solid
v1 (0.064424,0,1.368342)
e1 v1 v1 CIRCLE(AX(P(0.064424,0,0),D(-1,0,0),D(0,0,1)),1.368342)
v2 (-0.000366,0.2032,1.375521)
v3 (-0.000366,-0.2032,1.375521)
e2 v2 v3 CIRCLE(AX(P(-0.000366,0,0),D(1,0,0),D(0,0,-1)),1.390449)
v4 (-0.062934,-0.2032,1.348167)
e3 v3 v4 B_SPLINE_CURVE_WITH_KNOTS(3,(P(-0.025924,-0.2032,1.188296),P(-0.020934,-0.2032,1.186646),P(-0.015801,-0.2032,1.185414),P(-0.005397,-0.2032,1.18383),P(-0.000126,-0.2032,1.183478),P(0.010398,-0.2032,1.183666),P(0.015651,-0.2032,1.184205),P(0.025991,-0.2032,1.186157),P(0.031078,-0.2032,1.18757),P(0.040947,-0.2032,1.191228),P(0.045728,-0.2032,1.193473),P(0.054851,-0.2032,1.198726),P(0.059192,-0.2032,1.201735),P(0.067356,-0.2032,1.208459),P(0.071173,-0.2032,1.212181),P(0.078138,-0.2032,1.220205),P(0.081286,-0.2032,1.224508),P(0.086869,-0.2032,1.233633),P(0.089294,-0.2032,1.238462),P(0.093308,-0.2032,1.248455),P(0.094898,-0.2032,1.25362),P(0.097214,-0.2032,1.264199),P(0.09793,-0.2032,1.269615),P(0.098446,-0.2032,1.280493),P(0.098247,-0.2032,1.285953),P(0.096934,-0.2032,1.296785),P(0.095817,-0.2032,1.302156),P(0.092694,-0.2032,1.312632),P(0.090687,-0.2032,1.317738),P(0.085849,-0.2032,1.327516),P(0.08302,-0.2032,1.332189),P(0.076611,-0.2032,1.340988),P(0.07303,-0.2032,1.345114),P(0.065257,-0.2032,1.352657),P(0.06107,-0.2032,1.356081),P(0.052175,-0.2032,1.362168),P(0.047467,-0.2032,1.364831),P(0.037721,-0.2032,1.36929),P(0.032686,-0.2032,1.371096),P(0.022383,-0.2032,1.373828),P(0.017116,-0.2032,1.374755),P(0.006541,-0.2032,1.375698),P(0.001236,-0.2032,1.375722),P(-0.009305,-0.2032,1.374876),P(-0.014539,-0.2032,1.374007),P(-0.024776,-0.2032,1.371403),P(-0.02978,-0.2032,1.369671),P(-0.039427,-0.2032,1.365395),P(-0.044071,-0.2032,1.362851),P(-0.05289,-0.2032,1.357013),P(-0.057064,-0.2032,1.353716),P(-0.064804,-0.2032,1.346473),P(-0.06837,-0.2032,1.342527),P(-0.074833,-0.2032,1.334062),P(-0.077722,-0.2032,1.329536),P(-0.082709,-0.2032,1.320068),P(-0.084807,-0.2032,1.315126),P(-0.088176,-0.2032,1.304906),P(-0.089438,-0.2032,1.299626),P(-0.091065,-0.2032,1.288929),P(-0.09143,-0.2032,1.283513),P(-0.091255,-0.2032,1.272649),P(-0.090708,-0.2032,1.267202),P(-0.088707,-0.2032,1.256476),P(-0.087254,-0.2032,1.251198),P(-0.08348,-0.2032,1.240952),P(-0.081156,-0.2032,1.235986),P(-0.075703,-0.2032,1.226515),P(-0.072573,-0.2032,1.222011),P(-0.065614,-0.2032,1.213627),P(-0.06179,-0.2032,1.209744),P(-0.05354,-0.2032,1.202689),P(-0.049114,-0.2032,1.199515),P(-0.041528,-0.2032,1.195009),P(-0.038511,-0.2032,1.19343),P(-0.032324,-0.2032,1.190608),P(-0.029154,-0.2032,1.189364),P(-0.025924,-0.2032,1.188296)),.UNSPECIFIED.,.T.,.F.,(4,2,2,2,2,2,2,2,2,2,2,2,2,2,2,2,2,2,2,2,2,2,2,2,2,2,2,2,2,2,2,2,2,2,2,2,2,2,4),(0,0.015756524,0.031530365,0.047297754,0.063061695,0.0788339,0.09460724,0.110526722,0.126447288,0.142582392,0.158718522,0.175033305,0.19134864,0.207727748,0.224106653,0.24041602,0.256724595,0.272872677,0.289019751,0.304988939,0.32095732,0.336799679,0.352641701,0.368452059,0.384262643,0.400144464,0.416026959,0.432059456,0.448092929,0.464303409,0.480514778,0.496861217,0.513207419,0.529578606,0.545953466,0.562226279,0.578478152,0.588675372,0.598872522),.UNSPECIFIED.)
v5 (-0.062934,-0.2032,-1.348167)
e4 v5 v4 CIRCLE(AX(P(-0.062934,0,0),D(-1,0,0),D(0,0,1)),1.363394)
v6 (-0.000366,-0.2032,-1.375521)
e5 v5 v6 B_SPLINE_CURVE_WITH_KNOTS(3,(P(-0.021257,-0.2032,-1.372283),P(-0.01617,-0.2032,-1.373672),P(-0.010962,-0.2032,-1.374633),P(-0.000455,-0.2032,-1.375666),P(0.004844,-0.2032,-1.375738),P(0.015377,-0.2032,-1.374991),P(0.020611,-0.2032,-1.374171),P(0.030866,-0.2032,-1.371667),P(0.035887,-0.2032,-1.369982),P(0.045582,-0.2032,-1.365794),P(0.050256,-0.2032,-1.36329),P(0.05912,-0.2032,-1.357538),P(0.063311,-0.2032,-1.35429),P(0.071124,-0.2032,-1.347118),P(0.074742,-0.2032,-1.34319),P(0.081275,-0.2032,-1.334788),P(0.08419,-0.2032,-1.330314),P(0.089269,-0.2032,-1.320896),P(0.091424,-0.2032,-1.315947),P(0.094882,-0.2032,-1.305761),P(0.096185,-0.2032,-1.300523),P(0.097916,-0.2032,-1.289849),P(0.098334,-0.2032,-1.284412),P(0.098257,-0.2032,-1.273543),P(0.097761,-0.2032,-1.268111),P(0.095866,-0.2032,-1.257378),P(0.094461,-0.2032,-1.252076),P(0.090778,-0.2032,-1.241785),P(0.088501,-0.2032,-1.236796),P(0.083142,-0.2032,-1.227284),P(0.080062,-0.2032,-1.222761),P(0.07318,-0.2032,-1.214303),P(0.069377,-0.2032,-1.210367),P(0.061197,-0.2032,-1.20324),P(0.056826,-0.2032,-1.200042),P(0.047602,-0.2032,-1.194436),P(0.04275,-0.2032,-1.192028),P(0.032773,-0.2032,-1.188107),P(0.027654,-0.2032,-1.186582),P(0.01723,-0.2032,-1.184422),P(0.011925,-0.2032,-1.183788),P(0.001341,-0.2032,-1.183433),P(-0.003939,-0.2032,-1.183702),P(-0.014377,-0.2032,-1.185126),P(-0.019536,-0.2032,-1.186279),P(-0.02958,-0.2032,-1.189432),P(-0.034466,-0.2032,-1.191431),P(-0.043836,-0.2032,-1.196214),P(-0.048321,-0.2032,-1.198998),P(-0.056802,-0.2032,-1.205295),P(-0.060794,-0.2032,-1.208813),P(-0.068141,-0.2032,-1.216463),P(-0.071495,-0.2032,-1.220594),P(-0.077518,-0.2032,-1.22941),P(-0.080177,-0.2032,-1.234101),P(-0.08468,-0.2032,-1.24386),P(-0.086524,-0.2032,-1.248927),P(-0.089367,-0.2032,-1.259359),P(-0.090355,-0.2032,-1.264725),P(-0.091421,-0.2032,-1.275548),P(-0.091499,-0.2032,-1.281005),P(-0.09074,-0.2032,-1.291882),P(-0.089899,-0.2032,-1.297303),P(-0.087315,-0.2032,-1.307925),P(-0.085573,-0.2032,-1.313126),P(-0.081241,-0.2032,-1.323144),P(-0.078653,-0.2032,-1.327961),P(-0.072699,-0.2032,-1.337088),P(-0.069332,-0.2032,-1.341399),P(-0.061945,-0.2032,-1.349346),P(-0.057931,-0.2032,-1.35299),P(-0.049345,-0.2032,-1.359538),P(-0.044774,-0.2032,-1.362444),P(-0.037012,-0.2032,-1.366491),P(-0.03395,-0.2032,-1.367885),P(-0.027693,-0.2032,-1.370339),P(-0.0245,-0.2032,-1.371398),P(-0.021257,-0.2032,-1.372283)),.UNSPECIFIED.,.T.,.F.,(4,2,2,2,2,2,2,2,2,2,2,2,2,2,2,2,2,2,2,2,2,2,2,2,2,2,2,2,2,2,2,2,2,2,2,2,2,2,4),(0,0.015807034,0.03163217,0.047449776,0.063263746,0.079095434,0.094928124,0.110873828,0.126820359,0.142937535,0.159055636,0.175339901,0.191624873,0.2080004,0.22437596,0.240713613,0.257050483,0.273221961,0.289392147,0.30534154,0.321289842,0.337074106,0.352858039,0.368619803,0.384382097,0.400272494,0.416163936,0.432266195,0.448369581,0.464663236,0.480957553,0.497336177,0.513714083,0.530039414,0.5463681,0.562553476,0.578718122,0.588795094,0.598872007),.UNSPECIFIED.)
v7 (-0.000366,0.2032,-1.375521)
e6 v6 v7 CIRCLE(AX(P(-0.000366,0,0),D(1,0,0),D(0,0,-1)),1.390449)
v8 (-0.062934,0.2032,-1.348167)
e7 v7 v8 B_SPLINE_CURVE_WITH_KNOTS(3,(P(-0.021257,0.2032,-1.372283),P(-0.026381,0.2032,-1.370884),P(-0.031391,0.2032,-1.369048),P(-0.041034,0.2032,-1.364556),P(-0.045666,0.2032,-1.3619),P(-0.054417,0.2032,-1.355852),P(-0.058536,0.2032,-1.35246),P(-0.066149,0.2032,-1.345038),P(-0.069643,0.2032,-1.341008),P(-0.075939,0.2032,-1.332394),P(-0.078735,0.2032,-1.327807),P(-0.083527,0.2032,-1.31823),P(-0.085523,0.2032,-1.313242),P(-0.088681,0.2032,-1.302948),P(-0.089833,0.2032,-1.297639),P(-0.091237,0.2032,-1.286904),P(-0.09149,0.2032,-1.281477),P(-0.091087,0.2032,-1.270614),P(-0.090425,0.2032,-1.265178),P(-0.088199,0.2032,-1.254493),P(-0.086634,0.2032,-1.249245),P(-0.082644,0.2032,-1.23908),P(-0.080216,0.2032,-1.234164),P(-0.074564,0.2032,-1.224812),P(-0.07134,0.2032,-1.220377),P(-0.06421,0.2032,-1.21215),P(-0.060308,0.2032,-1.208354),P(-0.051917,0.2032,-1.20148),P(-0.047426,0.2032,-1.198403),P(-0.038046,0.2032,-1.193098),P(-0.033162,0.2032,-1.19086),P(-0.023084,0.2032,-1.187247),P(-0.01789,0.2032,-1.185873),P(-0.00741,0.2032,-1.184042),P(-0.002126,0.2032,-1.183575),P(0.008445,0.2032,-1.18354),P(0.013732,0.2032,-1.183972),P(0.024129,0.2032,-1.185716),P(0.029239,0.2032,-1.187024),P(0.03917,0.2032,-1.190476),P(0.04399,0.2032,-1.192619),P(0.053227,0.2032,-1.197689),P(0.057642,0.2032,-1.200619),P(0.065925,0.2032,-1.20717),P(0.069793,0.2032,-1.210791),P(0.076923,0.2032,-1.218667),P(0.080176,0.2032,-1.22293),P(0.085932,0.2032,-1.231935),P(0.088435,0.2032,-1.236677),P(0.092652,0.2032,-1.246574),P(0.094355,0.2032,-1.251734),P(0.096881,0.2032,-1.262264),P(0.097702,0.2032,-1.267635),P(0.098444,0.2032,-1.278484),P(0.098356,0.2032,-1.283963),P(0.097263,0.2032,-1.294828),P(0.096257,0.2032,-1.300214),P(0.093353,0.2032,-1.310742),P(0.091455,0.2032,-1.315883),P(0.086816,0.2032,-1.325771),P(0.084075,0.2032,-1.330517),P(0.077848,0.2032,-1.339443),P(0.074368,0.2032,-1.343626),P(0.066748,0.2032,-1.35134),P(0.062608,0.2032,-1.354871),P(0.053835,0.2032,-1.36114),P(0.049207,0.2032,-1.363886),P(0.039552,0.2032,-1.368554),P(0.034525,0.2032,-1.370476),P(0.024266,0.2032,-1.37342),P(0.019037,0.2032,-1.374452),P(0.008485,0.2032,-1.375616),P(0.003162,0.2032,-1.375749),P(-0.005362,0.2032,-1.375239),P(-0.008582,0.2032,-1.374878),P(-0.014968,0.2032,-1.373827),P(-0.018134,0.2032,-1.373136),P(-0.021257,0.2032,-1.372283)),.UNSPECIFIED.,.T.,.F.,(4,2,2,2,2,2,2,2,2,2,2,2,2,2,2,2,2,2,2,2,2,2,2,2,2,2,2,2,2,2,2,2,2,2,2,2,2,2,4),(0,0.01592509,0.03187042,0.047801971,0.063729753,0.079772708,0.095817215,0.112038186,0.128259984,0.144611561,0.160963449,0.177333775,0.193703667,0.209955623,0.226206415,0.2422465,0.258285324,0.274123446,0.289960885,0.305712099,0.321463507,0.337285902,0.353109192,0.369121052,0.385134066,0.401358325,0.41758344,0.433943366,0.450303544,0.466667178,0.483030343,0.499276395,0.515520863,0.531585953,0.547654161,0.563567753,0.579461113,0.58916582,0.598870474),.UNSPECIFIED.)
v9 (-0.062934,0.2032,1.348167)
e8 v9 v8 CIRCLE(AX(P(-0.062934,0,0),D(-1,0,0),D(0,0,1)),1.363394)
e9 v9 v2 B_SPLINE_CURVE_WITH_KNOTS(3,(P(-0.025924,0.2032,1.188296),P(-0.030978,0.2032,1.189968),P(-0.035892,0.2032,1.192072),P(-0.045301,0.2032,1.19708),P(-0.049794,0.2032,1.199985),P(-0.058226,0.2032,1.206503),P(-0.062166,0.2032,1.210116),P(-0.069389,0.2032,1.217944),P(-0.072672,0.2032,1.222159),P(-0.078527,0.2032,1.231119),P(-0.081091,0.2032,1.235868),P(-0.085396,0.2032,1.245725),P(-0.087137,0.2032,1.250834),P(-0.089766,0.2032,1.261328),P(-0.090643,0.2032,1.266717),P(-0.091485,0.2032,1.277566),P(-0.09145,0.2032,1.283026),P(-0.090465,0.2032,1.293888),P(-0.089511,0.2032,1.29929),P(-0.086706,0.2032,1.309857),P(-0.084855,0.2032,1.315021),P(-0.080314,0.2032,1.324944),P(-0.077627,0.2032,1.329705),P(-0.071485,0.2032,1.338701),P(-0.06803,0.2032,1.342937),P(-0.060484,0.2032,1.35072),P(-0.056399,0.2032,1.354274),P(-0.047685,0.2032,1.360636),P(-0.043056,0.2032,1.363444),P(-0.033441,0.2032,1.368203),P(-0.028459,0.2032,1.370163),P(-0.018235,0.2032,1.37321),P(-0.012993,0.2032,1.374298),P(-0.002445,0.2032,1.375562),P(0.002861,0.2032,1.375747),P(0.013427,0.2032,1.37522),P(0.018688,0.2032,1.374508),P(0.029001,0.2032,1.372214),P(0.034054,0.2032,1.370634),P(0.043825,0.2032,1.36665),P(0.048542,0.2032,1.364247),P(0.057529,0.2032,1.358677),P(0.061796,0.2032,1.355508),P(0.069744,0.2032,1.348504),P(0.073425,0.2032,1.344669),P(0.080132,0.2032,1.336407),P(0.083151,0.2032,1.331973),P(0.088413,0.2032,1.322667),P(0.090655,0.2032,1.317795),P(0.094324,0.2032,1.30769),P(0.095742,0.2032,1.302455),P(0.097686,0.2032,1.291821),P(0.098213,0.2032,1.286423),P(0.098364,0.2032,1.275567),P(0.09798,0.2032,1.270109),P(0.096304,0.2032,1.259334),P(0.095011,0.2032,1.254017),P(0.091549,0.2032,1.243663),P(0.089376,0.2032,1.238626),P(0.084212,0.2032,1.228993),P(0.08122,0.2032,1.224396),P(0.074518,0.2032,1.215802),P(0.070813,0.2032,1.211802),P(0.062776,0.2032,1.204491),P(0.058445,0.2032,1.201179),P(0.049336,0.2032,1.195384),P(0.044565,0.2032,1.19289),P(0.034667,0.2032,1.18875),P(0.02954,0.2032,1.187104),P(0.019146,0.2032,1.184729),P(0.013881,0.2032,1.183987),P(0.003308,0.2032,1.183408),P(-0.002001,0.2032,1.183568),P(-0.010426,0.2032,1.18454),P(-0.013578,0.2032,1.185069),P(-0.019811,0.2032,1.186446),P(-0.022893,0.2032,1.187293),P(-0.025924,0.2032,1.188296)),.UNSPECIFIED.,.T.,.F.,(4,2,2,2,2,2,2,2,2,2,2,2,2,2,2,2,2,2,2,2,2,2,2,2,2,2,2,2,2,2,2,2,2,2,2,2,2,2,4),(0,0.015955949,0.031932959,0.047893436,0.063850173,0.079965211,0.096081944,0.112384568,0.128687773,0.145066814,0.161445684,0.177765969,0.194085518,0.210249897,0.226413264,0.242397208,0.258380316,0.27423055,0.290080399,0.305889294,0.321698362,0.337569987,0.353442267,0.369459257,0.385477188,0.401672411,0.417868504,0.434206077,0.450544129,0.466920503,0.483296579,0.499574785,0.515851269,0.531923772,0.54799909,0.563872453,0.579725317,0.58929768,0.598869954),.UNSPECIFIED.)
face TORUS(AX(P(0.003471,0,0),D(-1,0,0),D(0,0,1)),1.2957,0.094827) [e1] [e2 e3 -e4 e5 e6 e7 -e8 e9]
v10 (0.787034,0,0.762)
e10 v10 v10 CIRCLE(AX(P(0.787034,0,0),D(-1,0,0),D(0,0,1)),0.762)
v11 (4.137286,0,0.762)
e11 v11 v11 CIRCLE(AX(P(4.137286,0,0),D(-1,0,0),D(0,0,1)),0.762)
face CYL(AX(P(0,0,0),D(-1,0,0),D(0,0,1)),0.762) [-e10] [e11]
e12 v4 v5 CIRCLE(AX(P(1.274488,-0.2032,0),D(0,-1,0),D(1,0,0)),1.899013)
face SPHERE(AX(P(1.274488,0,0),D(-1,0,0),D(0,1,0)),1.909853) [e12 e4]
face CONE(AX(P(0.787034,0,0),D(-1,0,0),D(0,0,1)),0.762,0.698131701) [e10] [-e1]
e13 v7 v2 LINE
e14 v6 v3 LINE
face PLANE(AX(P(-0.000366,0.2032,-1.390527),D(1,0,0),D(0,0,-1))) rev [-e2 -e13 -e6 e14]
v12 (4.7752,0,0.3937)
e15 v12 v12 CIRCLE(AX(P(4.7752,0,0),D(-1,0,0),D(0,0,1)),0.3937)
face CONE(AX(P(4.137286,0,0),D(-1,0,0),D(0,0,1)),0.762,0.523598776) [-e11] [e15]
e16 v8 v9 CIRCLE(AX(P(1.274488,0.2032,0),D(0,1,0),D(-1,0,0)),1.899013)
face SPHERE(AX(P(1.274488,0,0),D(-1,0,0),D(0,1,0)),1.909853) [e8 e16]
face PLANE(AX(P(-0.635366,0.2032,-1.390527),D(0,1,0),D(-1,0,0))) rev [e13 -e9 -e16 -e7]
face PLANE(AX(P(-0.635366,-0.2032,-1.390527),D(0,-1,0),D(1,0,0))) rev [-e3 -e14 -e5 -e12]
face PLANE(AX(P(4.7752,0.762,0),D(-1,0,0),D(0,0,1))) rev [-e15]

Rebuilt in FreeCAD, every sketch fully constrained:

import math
import FreeCAD as App
import Part
import Sketcher
from FreeCAD import Vector
Q = App.Units.Quantity


def add_polygon(sketch, points):
    """Adds a closed chain of lines whose ends are joined by coincident constraints."""
    first, n = sketch.GeometryCount, len(points)
    for a, b in zip(points, points[1:] + points[:1]):
        sketch.addGeometry(Part.LineSegment(App.Vector(*a, 0), App.Vector(*b, 0)), False)
    for i in range(n):
        sketch.addConstraint(Sketcher.Constraint("Coincident", first + i, 2, first + (i + 1) % n, 1))

doc = App.newDocument("Part")
body = doc.addObject("PartDesign::Body", "Body")

# Sketch on XY plane
sketch1 = body.newObject("Sketcher::SketchObject", "Sketch")
sketch1.AttachmentSupport = (doc.getObject("XY_Plane"), [""])
sketch1.MapMode = "FlatFace"
sketch1.addGeometry([
    Part.LineSegment(Vector(0.79, 0.76, 0), Vector(0.06, 1.37, 0)),  # 0
    Part.ArcOfCircle(Part.Circle(Vector(0, 1.3, 0), Vector(0, 0, 1), 0.09), math.radians(50), math.radians(134)),  # 1
    Part.ArcOfCircle(Part.Circle(Vector(1.27, 0, 0), Vector(0, 0, 1), 1.91), math.radians(134), math.radians(180)),  # 2
    Part.LineSegment(Vector(-0.64, 0, 0), Vector(4.78, 0, 0)),  # 3
    Part.LineSegment(Vector(4.78, 0, 0), Vector(4.78, 0.76, 0)),  # 4
    Part.LineSegment(Vector(4.78, 0.76, 0), Vector(0.79, 0.76, 0)),  # 5
], False)
sketch1.addConstraint([
    Sketcher.Constraint("Tangent", 0, 2, 1, 1),
    Sketcher.Constraint("Tangent", 1, 2, 2, 1),
    Sketcher.Constraint("Coincident", 2, 2, 3, 1),
    Sketcher.Constraint("Coincident", 3, 2, 4, 1),
    Sketcher.Constraint("Coincident", 4, 2, 5, 1),
    Sketcher.Constraint("Coincident", 5, 2, 0, 1),
    Sketcher.Constraint("Horizontal", 3),
    Sketcher.Constraint("Vertical", 4),
    Sketcher.Constraint("Horizontal", 5),
    Sketcher.Constraint("PointOnObject", 2, 3, -1),
    Sketcher.Constraint("PointOnObject", 2, 2, -1),
    Sketcher.Constraint("Angle", 0, Q("140 deg")),
    Sketcher.Constraint("DistanceY", 4, 1, 4, 2, Q("0.03 in")),
    Sketcher.Constraint("DistanceX", -1, 1, 3, 2, Q("0.188 in")),
    Sketcher.Constraint("DistanceX", 2, 2, 5, 2, Q("0.056 in")),
    Sketcher.Constraint("Radius", 1, 0.094827),
    Sketcher.Constraint("Radius", 2, 1.909853),
    Sketcher.Constraint("DistanceX", 3, 1, 3, 2, 5.410566),
])
revolution = body.newObject("PartDesign::Revolution", "Revolution")
revolution.Profile = sketch1
revolution.ReferenceAxis = (sketch1, ["H_Axis"])
revolution.Angle = 360

# Sketch on XY plane
sketch2 = body.newObject("Sketcher::SketchObject", "Sketch001")
sketch2.AttachmentSupport = (doc.getObject("XY_Plane"), [""])
sketch2.MapMode = "FlatFace"
add_polygon(sketch2, [(-0.64, 0.2), (-0.64, -0.2), (0, -0.2), (0, 0.2)])  # lines 0-3
sketch2.addConstraint([
    Sketcher.Constraint("Vertical", 0),
    Sketcher.Constraint("Horizontal", 1),
    Sketcher.Constraint("Vertical", 2),
    Sketcher.Constraint("Horizontal", 3),
    Sketcher.Constraint("DistanceX", 1, 1, 1, 2, Q("0.025 in")),
    Sketcher.Constraint("DistanceY", 0, 2, 0, 1, Q("0.016 in")),
    Sketcher.Constraint("DistanceY", 0, 2, -1, 1, Q("0.008 in")),
    Sketcher.Constraint("DistanceX", 0, 2, -1, 1, 0.635366),
])
pocket1 = body.newObject("PartDesign::Pocket", "Pocket")
pocket1.Profile = sketch2
pocket1.Type = "ThroughAll"
pocket1.Midplane = True

# Sketch on XY plane
sketch3 = body.newObject("Sketcher::SketchObject", "Sketch002")
sketch3.AttachmentSupport = (doc.getObject("XY_Plane"), [""])
sketch3.MapMode = "FlatFace"
add_polygon(sketch3, [(4.78, 0), (5.28, 0), (5.28, 1.27), (4.14, 1.27), (4.14, 0.76), (4.78, 0.39)])  # lines 0-5
sketch3.addConstraint([
    Sketcher.Constraint("Horizontal", 0),
    Sketcher.Constraint("Vertical", 1),
    Sketcher.Constraint("Horizontal", 2),
    Sketcher.Constraint("Vertical", 3),
    Sketcher.Constraint("Vertical", 5),
    Sketcher.Constraint("PointOnObject", 0, 2, -1),
    Sketcher.Constraint("Equal", 0, 3),
    Sketcher.Constraint("Angle", 4, Q("-30 deg")),
    Sketcher.Constraint("DistanceX", 0, 1, 0, 2, Q("0.02 in")),
    Sketcher.Constraint("DistanceY", 1, 1, 1, 2, Q("0.05 in")),
    Sketcher.Constraint("Distance", 4, Q("0.029 in")),
    Sketcher.Constraint("DistanceX", -1, 1, 0, 2, Q("0.208 in")),
])
groove = body.newObject("PartDesign::Groove", "Groove")
groove.Profile = sketch3
groove.ReferenceAxis = (sketch3, ["H_Axis"])
groove.Angle = 360

doc.recompute()
